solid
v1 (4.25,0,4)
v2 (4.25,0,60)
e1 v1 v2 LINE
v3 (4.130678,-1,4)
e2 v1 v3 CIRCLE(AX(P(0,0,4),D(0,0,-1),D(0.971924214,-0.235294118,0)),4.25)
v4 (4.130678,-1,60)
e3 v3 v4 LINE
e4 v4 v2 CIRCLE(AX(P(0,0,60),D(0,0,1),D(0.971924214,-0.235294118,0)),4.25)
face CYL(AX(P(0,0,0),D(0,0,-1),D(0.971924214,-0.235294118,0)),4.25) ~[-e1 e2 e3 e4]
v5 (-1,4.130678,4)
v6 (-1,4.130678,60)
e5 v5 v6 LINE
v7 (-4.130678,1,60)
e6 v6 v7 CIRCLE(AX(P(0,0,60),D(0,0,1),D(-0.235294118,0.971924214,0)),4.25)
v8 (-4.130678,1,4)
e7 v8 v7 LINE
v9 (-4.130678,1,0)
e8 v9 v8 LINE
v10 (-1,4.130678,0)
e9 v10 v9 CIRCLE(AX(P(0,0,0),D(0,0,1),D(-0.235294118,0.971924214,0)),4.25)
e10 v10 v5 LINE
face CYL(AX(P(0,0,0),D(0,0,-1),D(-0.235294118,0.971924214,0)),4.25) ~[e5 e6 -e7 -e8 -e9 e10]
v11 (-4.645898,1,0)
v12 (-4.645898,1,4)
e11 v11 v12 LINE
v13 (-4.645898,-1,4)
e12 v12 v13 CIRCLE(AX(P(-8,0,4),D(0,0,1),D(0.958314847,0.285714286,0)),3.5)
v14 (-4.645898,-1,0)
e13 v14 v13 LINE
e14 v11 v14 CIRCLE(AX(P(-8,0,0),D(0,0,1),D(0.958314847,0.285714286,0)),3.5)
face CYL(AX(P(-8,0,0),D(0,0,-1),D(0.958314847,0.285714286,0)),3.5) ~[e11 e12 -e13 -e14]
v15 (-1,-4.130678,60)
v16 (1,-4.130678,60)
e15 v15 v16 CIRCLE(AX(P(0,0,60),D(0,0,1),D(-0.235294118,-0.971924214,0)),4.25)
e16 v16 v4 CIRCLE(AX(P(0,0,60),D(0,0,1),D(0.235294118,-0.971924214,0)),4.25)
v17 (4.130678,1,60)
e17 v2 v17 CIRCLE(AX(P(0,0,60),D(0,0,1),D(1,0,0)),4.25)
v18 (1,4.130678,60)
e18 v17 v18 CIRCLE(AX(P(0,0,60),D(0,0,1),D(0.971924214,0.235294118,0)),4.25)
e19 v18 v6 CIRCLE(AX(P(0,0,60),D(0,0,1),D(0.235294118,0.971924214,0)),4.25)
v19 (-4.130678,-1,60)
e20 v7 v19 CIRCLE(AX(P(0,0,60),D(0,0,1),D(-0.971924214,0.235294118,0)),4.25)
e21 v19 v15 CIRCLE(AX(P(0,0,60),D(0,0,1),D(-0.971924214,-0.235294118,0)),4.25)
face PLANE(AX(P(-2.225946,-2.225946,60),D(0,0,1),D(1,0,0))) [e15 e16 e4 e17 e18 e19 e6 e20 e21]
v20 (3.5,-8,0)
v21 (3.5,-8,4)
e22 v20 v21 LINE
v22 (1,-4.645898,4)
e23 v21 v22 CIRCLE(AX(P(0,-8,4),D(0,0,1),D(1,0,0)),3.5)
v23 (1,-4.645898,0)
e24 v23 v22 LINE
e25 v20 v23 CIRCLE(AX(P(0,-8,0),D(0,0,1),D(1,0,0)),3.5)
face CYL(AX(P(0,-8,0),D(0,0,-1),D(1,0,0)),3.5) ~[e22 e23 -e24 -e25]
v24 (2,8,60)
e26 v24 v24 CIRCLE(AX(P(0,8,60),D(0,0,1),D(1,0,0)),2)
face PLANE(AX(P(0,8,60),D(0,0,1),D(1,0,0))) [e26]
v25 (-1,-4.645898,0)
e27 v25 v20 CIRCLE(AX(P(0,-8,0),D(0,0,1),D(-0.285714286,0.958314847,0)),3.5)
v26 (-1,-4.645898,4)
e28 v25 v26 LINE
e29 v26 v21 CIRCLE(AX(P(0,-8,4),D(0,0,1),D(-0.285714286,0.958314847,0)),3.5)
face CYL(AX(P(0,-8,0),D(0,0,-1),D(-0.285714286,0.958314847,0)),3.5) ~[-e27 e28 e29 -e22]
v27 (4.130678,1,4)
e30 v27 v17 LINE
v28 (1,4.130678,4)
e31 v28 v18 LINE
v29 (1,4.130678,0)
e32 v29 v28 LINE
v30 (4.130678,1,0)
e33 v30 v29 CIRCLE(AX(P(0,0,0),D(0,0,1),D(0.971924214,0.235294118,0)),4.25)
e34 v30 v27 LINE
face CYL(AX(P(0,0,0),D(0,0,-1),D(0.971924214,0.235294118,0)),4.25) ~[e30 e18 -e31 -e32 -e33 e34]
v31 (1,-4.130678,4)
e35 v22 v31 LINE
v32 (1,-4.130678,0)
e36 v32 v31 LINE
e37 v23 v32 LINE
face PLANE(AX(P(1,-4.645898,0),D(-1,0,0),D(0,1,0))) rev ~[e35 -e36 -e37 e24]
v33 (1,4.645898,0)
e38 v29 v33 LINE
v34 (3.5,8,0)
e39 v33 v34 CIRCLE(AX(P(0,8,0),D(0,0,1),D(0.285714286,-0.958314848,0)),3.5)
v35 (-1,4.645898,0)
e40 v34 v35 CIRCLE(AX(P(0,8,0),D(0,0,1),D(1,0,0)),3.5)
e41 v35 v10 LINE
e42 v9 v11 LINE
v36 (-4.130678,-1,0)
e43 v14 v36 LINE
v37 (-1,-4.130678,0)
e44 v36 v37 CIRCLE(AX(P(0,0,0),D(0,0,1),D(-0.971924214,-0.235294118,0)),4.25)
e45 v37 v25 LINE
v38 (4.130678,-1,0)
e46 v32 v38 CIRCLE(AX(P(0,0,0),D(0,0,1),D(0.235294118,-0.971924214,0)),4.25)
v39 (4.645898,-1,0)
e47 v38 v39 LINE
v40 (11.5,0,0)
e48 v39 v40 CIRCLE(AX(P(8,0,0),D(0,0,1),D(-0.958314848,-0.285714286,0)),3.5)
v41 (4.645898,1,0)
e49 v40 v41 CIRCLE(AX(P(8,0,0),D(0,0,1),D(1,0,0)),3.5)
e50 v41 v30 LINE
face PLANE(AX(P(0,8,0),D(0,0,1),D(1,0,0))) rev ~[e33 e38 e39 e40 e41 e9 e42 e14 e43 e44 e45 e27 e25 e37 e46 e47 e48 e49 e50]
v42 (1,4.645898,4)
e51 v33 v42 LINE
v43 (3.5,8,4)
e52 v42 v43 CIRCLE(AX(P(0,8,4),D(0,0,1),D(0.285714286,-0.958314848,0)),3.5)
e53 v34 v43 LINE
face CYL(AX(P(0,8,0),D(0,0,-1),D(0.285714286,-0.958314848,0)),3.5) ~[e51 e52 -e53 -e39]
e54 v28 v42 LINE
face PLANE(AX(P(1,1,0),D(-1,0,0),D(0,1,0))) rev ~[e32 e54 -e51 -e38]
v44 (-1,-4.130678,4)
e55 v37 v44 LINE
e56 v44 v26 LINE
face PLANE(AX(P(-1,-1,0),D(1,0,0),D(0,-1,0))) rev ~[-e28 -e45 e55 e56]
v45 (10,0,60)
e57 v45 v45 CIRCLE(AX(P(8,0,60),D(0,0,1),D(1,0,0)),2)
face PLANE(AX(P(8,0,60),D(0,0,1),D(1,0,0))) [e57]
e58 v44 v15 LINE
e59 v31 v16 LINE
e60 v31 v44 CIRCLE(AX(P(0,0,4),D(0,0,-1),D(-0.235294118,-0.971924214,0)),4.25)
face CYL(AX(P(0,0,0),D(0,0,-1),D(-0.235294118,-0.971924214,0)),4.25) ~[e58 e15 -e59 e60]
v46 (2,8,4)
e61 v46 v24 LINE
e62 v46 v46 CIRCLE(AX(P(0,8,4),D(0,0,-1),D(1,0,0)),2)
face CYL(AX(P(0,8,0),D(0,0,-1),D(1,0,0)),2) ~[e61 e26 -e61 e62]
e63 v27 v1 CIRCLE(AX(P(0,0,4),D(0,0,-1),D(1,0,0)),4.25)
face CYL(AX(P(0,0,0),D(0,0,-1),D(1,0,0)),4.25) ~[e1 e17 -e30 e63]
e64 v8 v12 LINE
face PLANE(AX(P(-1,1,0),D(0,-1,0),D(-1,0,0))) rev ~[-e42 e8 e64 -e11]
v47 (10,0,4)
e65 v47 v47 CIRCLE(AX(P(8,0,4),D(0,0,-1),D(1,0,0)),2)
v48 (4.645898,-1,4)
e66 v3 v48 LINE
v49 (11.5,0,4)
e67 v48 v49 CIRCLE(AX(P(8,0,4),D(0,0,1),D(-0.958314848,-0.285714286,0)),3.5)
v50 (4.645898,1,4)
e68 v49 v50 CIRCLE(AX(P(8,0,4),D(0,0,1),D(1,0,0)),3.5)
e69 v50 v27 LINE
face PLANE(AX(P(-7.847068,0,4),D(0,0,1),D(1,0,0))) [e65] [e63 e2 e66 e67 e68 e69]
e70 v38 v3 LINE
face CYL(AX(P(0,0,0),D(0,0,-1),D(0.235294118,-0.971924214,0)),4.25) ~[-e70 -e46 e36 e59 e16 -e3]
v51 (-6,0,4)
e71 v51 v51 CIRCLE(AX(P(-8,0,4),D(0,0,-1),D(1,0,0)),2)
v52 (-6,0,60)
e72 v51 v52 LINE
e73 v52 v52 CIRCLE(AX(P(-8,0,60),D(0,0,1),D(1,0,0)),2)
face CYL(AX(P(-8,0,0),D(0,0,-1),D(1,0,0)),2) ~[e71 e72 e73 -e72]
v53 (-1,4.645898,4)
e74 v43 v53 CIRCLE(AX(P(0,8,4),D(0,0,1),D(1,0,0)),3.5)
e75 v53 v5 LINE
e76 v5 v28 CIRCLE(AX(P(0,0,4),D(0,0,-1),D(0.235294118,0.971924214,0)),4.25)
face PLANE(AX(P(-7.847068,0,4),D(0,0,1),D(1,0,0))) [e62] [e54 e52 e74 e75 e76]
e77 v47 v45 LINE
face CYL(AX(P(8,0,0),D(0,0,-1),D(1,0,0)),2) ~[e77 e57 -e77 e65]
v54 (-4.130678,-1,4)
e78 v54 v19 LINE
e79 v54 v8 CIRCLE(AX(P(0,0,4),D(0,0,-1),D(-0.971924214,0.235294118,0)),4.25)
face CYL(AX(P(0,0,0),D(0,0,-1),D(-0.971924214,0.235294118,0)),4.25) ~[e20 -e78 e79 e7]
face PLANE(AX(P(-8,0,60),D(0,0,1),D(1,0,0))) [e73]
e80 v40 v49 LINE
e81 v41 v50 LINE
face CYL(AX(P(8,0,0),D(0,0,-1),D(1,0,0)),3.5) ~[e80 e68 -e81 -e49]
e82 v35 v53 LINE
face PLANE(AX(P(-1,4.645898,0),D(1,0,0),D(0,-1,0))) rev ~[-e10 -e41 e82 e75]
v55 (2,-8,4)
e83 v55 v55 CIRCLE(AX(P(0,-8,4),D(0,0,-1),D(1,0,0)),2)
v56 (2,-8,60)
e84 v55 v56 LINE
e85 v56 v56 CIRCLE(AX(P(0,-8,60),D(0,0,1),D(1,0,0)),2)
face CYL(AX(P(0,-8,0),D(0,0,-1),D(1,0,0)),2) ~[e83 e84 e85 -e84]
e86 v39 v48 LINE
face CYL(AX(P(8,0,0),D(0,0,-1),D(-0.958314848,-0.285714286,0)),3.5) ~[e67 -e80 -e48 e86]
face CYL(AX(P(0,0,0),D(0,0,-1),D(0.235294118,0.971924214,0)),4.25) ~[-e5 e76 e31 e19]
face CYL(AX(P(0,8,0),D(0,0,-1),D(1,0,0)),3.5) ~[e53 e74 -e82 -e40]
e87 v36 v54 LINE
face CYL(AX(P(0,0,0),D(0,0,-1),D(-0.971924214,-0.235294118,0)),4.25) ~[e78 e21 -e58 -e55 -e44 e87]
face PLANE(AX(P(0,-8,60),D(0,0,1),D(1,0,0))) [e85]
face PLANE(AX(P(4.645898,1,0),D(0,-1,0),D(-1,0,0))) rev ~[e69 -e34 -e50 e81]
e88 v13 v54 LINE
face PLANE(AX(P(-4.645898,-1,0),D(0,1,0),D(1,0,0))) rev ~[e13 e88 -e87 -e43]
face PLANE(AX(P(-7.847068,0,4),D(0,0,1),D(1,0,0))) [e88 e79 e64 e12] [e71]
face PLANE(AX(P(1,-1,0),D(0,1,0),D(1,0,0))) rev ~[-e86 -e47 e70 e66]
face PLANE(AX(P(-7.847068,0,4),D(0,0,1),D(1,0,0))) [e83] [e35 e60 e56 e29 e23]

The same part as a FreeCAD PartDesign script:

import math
import FreeCAD as App
import Part
import Sketcher
from FreeCAD import Vector

doc = App.newDocument("Part")
body = doc.addObject("PartDesign::Body", "Body")

# Sketch on XY plane
sketch1 = body.newObject("Sketcher::SketchObject", "Sketch")
sketch1.AttachmentSupport = (doc.getObject("XY_Plane"), [""])
sketch1.MapMode = "FlatFace"
sketch1.addGeometry([
    Part.ArcOfCircle(Part.Circle(Vector(-8, 0, 0), Vector(0, 0, 1), 3.5), math.radians(16.60155), math.radians(343.39845)),  # 0
    Part.LineSegment(Vector(-4.645898, -1, 0), Vector(-1, -1, 0)),  # 1
    Part.LineSegment(Vector(-1, -1, 0), Vector(-1, -4.645898, 0)),  # 2
    Part.ArcOfCircle(Part.Circle(Vector(0, -8, 0), Vector(0, 0, 1), 3.5), math.radians(106.60155), math.radians(360)),  # 3
    Part.ArcOfCircle(Part.Circle(Vector(0, -8, 0), Vector(0, 0, 1), 3.5), math.radians(0), math.radians(73.39845)),  # 4
    Part.LineSegment(Vector(1, -4.645898, 0), Vector(1, -1, 0)),  # 5
    Part.LineSegment(Vector(1, -1, 0), Vector(4.645898, -1, 0)),  # 6
    Part.ArcOfCircle(Part.Circle(Vector(8, 0, 0), Vector(0, 0, 1), 3.5), math.radians(-163.39845), math.radians(0)),  # 7
    Part.ArcOfCircle(Part.Circle(Vector(8, 0, 0), Vector(0, 0, 1), 3.5), math.radians(0), math.radians(163.39845)),  # 8
    Part.LineSegment(Vector(4.645898, 1, 0), Vector(1, 1, 0)),  # 9
    Part.LineSegment(Vector(1, 1, 0), Vector(1, 4.645898, 0)),  # 10
    Part.ArcOfCircle(Part.Circle(Vector(0, 8, 0), Vector(0, 0, 1), 3.5), math.radians(-73.39845), math.radians(0)),  # 11
    Part.ArcOfCircle(Part.Circle(Vector(0, 8, 0), Vector(0, 0, 1), 3.5), math.radians(0), math.radians(253.39845)),  # 12
    Part.LineSegment(Vector(-1, 4.645898, 0), Vector(-1, 1, 0)),  # 13
    Part.LineSegment(Vector(-1, 1, 0), Vector(-4.645898, 1, 0)),  # 14
], False)
sketch1.addConstraint([
    Sketcher.Constraint("Coincident", 0, 2, 1, 1),
    Sketcher.Constraint("Coincident", 1, 2, 2, 1),
    Sketcher.Constraint("Coincident", 2, 2, 3, 1),
    Sketcher.Constraint("Tangent", 3, 2, 4, 1),
    Sketcher.Constraint("Coincident", 4, 2, 5, 1),
    Sketcher.Constraint("Coincident", 5, 2, 6, 1),
    Sketcher.Constraint("Coincident", 6, 2, 7, 1),
    Sketcher.Constraint("Tangent", 7, 2, 8, 1),
    Sketcher.Constraint("Coincident", 8, 2, 9, 1),
    Sketcher.Constraint("Coincident", 9, 2, 10, 1),
    Sketcher.Constraint("Coincident", 10, 2, 11, 1),
    Sketcher.Constraint("Tangent", 11, 2, 12, 1),
    Sketcher.Constraint("Coincident", 12, 2, 13, 1),
    Sketcher.Constraint("Coincident", 13, 2, 14, 1),
    Sketcher.Constraint("Coincident", 14, 2, 0, 1),
    Sketcher.Constraint("Horizontal", 1),
    Sketcher.Constraint("Vertical", 2),
    Sketcher.Constraint("Vertical", 5),
    Sketcher.Constraint("Horizontal", 6),
    Sketcher.Constraint("Horizontal", 9),
    Sketcher.Constraint("Vertical", 10),
    Sketcher.Constraint("Vertical", 13),
    Sketcher.Constraint("Horizontal", 14),
    Sketcher.Constraint("Equal", 0, 3),
    Sketcher.Constraint("Equal", 3, 4),
    Sketcher.Constraint("Equal", 4, 7),
    Sketcher.Constraint("Equal", 7, 8),
    Sketcher.Constraint("Equal", 8, 11),
    Sketcher.Constraint("Equal", 11, 12),
    Sketcher.Constraint("Symmetric", 0, 3, 7, 3, -1, 1),
    Sketcher.Constraint("Symmetric", 3, 3, 11, 3, -1, 1),
    Sketcher.Constraint("Symmetric", 1, 2, 9, 2, -1, 1),
    Sketcher.Constraint("Symmetric", 5, 2, 13, 2, -1, 1),
    Sketcher.Constraint("Symmetric", 2, 2, 4, 2, -2),
    Sketcher.Constraint("Symmetric", 0, 2, 6, 2, -2),
    Sketcher.Constraint("PointOnObject", 7, 2, -1),
    Sketcher.Constraint("Horizontal", 4, 3, 3, 2),
    Sketcher.Constraint("Horizontal", 12, 3, 11, 2),
    Sketcher.Constraint("Equal", 14, 2),
    Sketcher.Constraint("Radius", 0, 3.5),
    Sketcher.Constraint("DistanceX", 0, 3, -1, 1, 8.0),
    Sketcher.Constraint("DistanceY", 3, 3, -1, 1, 8.0),
    Sketcher.Constraint("DistanceY", 0, 2, -1, 1, 1.0),
])
pad1 = body.newObject("PartDesign::Pad", "Pad")
pad1.Profile = sketch1
pad1.Length = 4

# Sketch on XY plane
sketch2 = body.newObject("Sketcher::SketchObject", "Sketch001")
sketch2.AttachmentSupport = (doc.getObject("XY_Plane"), [""])
sketch2.MapMode = "FlatFace"
sketch2.addGeometry([
    Part.Circle(Vector(0, 8, 0), Vector(0, 0, 1), 2),  # 0
    Part.Circle(Vector(8, 0, 0), Vector(0, 0, 1), 2),  # 1
    Part.Circle(Vector(-8, 0, 0), Vector(0, 0, 1), 2),  # 2
    Part.Circle(Vector(0, -8, 0), Vector(0, 0, 1), 2),  # 3
    Part.ArcOfCircle(Part.Circle(Vector(0, 0, 0), Vector(0, 0, 1), 4.25), math.radians(-166.391039), math.radians(-103.608961)),  # 4
    Part.ArcOfCircle(Part.Circle(Vector(0, 0, 0), Vector(0, 0, 1), 4.25), math.radians(-103.608961), math.radians(-76.391039)),  # 5
    Part.ArcOfCircle(Part.Circle(Vector(0, 0, 0), Vector(0, 0, 1), 4.25), math.radians(-76.391039), math.radians(-13.608961)),  # 6
    Part.ArcOfCircle(Part.Circle(Vector(0, 0, 0), Vector(0, 0, 1), 4.25), math.radians(-13.608961), math.radians(0)),  # 7
    Part.ArcOfCircle(Part.Circle(Vector(0, 0, 0), Vector(0, 0, 1), 4.25), math.radians(0), math.radians(13.608961)),  # 8
    Part.ArcOfCircle(Part.Circle(Vector(0, 0, 0), Vector(0, 0, 1), 4.25), math.radians(13.608961), math.radians(76.391039)),  # 9
    Part.ArcOfCircle(Part.Circle(Vector(0, 0, 0), Vector(0, 0, 1), 4.25), math.radians(76.391039), math.radians(103.608961)),  # 10
    Part.ArcOfCircle(Part.Circle(Vector(0, 0, 0), Vector(0, 0, 1), 4.25), math.radians(103.608961), math.radians(166.391039)),  # 11
    Part.ArcOfCircle(Part.Circle(Vector(0, 0, 0), Vector(0, 0, 1), 4.25), math.radians(166.391039), math.radians(193.608961)),  # 12
], False)
sketch2.addConstraint([
    Sketcher.Constraint("Tangent", 4, 2, 5, 1),
    Sketcher.Constraint("Tangent", 5, 2, 6, 1),
    Sketcher.Constraint("Tangent", 6, 2, 7, 1),
    Sketcher.Constraint("Tangent", 7, 2, 8, 1),
    Sketcher.Constraint("Tangent", 8, 2, 9, 1),
    Sketcher.Constraint("Tangent", 9, 2, 10, 1),
    Sketcher.Constraint("Tangent", 10, 2, 11, 1),
    Sketcher.Constraint("Tangent", 11, 2, 12, 1),
    Sketcher.Constraint("Tangent", 12, 2, 4, 1),
    Sketcher.Constraint("Coincident", 4, 3, -1, 1),
    Sketcher.Constraint("Coincident", 6, 3, -1, 1),
    Sketcher.Constraint("Coincident", 8, 3, -1, 1),
    Sketcher.Constraint("Coincident", 10, 3, -1, 1),
    Sketcher.Constraint("Equal", 0, 1),
    Sketcher.Constraint("Equal", 1, 2),
    Sketcher.Constraint("Equal", 2, 3),
    Sketcher.Constraint("Symmetric", 1, 3, 2, 3, -1, 1),
    Sketcher.Constraint("Symmetric", 0, 3, 3, 3, -1, 1),
    Sketcher.Constraint("PointOnObject", 0, 3, -2),
    Sketcher.Constraint("PointOnObject", 1, 3, -1),
    Sketcher.Constraint("PointOnObject", 7, 2, -1),
    Sketcher.Constraint("Horizontal", 4, 2, 5, 2),
    Sketcher.Constraint("Horizontal", 9, 2, 10, 2),
    Sketcher.Constraint("Horizontal", 8, 2, 11, 2),
    Sketcher.Constraint("Horizontal", 6, 2, 12, 2),
    Sketcher.Constraint("Vertical", 6, 2, 8, 2),
    Sketcher.Constraint("Vertical", 5, 2, 9, 2),
    Sketcher.Constraint("Diameter", 0, 4.0),
    Sketcher.Constraint("Radius", 4, 4.25),
    Sketcher.Constraint("DistanceY", -1, 1, 0, 3, 8.0),
    Sketcher.Constraint("DistanceX", -1, 1, 1, 3, 8.0),
    Sketcher.Constraint("DistanceX", 4, 2, -1, 1, 1.0),
    Sketcher.Constraint("DistanceY", 6, 2, -1, 1, 1.0),
])
pad2 = body.newObject("PartDesign::Pad", "Pad001")
pad2.Profile = sketch2
pad2.Length = 60

doc.recompute()
